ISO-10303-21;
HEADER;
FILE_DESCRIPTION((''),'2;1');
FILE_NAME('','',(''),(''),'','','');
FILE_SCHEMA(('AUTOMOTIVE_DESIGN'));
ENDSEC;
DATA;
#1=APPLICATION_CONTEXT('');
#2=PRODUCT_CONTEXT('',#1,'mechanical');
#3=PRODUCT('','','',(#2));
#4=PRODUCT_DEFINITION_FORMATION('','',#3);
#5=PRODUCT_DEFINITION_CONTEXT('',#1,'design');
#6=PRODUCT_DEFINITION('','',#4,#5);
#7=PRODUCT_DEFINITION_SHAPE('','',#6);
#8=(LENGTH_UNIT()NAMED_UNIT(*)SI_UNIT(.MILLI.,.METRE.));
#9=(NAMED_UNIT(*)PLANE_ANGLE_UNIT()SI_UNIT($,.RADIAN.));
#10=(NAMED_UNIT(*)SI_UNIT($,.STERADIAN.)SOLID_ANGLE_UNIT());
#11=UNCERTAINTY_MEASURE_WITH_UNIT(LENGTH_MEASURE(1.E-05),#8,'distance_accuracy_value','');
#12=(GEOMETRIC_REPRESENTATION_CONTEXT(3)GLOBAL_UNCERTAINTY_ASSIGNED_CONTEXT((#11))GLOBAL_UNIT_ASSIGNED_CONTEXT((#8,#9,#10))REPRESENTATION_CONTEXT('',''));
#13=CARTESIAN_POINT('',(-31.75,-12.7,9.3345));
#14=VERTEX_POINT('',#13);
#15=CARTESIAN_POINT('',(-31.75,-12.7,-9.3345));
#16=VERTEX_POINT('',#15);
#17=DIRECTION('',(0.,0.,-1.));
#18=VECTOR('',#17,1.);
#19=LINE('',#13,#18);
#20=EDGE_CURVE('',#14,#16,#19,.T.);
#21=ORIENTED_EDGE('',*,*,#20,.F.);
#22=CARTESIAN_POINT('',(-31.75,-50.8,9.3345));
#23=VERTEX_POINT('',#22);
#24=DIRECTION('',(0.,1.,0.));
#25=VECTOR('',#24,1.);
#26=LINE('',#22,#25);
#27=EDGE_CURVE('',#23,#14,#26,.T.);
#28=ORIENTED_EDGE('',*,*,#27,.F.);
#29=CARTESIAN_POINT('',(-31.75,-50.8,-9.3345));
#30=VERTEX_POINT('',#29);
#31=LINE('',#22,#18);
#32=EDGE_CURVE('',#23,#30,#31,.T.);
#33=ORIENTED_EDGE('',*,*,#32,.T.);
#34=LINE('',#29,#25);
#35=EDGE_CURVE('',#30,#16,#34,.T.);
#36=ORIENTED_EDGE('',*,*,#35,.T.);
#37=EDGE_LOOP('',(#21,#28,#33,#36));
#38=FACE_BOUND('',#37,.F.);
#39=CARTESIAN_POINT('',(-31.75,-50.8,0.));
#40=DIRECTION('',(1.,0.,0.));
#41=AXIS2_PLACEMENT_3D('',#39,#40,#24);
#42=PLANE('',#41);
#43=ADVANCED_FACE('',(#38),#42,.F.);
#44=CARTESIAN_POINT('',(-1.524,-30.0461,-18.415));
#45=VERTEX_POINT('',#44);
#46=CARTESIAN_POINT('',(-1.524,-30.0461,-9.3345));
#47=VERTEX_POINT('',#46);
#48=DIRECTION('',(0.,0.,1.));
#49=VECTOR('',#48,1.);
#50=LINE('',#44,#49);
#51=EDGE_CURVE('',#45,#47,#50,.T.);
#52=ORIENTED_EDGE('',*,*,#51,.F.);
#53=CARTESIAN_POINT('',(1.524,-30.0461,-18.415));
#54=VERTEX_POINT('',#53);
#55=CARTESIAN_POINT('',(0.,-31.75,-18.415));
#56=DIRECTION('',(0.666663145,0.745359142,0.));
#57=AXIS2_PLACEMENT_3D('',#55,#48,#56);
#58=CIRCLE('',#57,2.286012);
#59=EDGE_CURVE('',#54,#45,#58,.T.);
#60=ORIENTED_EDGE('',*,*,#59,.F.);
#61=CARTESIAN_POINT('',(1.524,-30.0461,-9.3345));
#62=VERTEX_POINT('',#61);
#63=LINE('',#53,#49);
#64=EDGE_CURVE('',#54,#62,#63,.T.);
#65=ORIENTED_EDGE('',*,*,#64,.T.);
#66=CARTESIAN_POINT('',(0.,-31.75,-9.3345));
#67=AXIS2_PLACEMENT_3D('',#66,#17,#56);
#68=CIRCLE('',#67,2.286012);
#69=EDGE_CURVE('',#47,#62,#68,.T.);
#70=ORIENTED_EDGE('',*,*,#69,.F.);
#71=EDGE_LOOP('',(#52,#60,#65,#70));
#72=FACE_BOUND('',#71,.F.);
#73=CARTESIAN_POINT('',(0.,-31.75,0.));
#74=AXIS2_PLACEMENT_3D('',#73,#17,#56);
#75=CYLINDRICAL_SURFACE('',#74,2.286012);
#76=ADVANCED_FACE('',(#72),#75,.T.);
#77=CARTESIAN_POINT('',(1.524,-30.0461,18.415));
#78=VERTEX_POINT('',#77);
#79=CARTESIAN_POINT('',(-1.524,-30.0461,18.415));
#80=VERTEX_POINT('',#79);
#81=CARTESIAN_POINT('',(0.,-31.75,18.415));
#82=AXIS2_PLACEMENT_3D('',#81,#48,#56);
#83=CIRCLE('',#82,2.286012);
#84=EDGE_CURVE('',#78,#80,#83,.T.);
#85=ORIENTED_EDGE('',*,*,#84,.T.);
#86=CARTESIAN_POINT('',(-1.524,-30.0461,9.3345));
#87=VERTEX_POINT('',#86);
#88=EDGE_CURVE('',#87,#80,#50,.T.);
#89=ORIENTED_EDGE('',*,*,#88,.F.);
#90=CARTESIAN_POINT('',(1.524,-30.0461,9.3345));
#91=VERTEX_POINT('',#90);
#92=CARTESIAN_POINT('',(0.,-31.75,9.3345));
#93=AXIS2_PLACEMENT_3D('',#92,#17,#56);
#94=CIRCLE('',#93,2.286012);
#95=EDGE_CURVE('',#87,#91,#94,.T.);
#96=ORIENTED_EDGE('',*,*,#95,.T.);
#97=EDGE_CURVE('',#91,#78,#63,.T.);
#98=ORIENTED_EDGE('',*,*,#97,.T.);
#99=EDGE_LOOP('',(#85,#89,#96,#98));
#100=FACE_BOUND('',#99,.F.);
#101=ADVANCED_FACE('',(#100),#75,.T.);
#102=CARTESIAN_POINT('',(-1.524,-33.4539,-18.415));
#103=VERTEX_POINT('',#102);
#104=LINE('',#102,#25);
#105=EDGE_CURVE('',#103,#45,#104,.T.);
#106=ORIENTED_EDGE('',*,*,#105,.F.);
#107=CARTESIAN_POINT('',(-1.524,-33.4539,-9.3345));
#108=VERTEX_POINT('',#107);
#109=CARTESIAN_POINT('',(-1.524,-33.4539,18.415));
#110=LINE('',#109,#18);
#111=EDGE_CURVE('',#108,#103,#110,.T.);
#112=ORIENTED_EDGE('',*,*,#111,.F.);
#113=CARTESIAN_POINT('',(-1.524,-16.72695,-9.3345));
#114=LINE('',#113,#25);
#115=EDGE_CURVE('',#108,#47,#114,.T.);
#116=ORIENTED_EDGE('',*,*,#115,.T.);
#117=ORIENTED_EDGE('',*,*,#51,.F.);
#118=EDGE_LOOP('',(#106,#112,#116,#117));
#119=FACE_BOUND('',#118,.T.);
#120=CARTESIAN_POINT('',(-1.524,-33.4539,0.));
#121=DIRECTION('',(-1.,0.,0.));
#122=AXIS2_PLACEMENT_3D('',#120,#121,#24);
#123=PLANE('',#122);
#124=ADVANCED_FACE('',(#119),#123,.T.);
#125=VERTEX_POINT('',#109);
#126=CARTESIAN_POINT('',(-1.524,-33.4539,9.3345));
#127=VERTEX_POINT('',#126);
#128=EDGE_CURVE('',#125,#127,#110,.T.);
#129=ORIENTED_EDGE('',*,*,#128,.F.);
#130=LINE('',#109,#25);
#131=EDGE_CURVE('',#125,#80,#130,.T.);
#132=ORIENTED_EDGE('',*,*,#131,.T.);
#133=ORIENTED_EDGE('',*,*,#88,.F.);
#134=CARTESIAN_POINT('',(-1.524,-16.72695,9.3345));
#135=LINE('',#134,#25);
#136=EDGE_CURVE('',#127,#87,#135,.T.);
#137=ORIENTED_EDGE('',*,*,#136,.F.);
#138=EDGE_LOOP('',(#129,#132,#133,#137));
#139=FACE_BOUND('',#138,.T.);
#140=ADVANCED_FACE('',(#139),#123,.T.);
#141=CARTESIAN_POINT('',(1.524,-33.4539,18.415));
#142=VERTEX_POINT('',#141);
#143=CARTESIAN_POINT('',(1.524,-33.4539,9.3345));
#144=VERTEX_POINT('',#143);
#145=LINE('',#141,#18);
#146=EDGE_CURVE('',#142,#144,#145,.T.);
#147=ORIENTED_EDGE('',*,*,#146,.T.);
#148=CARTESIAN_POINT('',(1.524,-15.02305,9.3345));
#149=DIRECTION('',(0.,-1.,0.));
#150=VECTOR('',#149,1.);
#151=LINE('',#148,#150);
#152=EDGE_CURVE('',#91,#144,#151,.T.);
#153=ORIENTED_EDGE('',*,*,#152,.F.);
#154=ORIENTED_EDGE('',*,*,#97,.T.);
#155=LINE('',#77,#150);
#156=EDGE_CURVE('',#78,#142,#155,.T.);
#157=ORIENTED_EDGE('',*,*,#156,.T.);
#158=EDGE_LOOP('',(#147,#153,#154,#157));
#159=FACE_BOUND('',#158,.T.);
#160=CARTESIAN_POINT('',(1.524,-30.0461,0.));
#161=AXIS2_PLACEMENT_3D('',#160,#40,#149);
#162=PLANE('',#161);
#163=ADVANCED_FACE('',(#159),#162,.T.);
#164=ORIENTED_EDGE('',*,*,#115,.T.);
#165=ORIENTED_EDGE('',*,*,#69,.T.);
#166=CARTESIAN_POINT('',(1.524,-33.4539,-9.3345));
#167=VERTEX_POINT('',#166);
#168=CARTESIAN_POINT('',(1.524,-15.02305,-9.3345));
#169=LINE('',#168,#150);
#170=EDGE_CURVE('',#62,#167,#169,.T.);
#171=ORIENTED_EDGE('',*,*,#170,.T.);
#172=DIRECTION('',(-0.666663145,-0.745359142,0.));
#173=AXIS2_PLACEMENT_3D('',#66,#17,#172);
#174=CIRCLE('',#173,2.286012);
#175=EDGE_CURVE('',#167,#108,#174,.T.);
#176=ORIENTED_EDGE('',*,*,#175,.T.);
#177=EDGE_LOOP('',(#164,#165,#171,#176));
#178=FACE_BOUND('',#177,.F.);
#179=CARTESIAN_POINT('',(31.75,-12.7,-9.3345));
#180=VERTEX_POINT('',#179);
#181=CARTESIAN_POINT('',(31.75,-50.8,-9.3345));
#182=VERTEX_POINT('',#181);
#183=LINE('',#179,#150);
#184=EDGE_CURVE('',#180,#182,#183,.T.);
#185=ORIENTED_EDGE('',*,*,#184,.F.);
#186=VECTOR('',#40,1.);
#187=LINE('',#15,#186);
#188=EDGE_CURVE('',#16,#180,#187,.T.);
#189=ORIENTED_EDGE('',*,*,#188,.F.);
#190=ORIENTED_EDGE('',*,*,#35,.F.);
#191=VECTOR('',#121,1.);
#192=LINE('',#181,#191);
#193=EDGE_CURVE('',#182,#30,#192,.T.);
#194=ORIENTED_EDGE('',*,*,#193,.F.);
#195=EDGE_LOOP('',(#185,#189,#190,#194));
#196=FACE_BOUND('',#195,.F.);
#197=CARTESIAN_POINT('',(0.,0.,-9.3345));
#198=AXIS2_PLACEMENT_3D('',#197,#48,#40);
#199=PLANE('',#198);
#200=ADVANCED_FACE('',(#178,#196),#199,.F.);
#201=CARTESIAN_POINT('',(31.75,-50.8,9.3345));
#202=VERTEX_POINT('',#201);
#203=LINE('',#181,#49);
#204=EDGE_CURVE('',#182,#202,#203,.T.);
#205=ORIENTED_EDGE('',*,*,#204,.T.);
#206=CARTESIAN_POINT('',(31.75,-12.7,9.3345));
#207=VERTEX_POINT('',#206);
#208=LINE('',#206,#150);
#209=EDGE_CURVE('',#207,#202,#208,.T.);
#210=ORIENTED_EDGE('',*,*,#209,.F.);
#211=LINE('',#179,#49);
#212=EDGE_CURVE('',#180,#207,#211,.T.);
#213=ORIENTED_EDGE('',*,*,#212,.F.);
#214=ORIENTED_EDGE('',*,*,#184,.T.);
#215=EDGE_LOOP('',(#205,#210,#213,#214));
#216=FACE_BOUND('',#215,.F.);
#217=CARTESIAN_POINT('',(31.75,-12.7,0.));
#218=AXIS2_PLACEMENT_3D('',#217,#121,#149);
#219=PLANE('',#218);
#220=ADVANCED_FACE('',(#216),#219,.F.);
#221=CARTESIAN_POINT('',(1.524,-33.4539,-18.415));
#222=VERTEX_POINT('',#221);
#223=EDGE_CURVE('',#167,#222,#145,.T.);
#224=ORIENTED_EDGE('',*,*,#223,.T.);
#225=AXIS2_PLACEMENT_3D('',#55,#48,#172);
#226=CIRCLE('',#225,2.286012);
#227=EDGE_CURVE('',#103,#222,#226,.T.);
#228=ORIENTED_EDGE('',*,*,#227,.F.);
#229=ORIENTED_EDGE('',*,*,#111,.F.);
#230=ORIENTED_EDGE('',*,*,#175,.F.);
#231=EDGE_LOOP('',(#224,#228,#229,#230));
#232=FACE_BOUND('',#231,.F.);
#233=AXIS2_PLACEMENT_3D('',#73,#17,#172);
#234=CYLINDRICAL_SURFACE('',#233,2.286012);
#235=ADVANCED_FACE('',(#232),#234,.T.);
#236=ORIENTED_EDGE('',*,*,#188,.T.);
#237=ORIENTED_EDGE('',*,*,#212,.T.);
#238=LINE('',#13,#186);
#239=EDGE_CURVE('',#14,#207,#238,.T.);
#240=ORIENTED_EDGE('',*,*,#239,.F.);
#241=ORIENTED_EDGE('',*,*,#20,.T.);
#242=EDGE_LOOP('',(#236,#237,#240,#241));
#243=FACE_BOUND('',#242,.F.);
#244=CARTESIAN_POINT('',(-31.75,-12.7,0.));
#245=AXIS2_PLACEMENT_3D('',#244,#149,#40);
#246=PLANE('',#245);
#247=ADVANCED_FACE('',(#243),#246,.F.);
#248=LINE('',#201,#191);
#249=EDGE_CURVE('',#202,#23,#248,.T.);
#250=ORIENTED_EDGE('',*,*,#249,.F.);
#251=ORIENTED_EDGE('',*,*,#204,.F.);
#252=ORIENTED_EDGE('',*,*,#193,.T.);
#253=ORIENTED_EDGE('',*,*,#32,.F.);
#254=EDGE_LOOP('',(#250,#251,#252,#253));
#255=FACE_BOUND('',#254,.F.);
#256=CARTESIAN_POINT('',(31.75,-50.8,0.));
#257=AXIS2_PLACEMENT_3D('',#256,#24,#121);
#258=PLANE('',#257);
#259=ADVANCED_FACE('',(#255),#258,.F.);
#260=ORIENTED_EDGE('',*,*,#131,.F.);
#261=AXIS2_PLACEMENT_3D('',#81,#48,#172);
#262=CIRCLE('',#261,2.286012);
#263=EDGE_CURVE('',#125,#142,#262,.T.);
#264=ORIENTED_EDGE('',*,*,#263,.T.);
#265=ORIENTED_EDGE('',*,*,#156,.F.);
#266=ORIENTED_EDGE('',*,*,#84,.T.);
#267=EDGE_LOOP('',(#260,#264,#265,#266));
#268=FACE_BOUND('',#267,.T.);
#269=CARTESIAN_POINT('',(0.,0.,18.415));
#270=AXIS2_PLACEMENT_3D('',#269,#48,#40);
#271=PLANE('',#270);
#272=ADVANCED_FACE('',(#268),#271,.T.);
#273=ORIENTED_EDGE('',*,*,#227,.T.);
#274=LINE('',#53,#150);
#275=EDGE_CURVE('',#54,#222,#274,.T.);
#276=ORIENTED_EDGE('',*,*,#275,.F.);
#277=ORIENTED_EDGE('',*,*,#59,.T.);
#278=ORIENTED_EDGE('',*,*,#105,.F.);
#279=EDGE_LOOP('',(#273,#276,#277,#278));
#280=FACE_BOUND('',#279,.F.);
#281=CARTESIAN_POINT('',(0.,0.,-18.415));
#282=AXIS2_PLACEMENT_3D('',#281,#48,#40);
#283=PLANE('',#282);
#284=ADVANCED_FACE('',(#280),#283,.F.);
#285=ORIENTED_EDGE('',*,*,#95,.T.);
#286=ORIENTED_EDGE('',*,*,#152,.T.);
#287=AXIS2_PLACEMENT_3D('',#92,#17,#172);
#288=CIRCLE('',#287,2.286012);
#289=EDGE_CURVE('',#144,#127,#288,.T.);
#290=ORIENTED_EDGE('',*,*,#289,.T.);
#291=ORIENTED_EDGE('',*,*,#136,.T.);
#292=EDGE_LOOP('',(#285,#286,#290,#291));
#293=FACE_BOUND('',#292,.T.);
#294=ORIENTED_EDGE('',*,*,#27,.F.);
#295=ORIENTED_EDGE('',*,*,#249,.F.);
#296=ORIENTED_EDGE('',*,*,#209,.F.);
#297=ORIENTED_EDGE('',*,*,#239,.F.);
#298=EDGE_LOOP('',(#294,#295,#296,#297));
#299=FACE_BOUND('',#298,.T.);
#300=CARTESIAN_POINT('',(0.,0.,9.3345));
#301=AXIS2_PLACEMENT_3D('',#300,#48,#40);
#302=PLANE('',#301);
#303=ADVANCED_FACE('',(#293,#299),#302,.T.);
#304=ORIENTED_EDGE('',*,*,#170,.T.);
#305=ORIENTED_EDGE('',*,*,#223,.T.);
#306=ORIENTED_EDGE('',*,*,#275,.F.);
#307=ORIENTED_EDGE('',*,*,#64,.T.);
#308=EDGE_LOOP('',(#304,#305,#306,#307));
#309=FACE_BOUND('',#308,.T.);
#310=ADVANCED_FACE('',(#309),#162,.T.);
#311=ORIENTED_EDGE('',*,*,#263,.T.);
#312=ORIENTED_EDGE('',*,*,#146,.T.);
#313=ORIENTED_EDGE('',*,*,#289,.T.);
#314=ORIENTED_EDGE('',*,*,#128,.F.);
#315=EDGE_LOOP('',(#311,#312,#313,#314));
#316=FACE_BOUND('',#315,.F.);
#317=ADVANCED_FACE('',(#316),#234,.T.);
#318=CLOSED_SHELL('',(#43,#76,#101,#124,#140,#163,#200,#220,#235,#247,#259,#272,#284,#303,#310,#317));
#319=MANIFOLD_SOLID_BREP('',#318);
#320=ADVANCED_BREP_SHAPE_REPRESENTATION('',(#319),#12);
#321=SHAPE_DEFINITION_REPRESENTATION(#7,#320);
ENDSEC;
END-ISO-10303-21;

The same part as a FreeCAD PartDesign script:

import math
import FreeCAD as App
import Part
import Sketcher
Q = App.Units.Quantity

doc = App.newDocument("Part")
body = doc.addObject("PartDesign::Body", "Body")

# Sketch on XY plane
sketch1 = body.newObject("Sketcher::SketchObject", "Sketch")
sketch1.AttachmentSupport = (doc.getObject("XY_Plane"), [""])
sketch1.MapMode = "FlatFace"
sketch1.addGeometry([
    Part.LineSegment(App.Vector(1.5, -33.5, 0), App.Vector(1.5, -30, 0)),
    Part.ArcOfCircle(Part.Circle(App.Vector(0, -31.8, 0), App.Vector(0, 0, 1), 2.3), math.radians(48), math.radians(132)),
    Part.LineSegment(App.Vector(-1.5, -30, 0), App.Vector(-1.5, -33.5, 0)),
    Part.ArcOfCircle(Part.Circle(App.Vector(0, -31.8, 0), App.Vector(0, 0, 1), 2.3), math.radians(-132), math.radians(-48)),
], False)
sketch1.addConstraint([
    Sketcher.Constraint("Coincident", 0, 2, 1, 1),
    Sketcher.Constraint("Coincident", 1, 2, 2, 1),
    Sketcher.Constraint("Coincident", 2, 2, 3, 1),
    Sketcher.Constraint("Coincident", 3, 2, 0, 1),
    Sketcher.Constraint("Vertical", 0),
    Sketcher.Constraint("Vertical", 2),
    Sketcher.Constraint("Coincident", 3, 3, 1, 3),
    Sketcher.Constraint("Equal", 1, 3),
    Sketcher.Constraint("Symmetric", 0, 2, 1, 2, -2),
    Sketcher.Constraint("Radius", 1, Q("0.09 in")),
    Sketcher.Constraint("DistanceY", 1, 3, -1, 1, Q("1.25 in")),
    Sketcher.Constraint("DistanceX", -1, 1, 0, 2, Q("0.06 in")),
])
pad1 = body.newObject("PartDesign::Pad", "Pad")
pad1.Profile = sketch1
pad1.Length = Q("1.45 in")
pad1.Midplane = True

# Sketch on XY plane
sketch2 = body.newObject("Sketcher::SketchObject", "Sketch001")
sketch2.AttachmentSupport = (doc.getObject("XY_Plane"), [""])
sketch2.MapMode = "FlatFace"
sketch2.addGeometry([
    Part.LineSegment(App.Vector(-32, -51, 0), App.Vector(32, -51, 0)),
    Part.LineSegment(App.Vector(32, -51, 0), App.Vector(32, -13, 0)),
    Part.LineSegment(App.Vector(32, -13, 0), App.Vector(-32, -13, 0)),
    Part.LineSegment(App.Vector(-32, -13, 0), App.Vector(-32, -51, 0)),
], False)
sketch2.addConstraint([
    Sketcher.Constraint("Coincident", 0, 2, 1, 1),
    Sketcher.Constraint("Coincident", 1, 2, 2, 1),
    Sketcher.Constraint("Coincident", 2, 2, 3, 1),
    Sketcher.Constraint("Coincident", 3, 2, 0, 1),
    Sketcher.Constraint("Horizontal", 0),
    Sketcher.Constraint("Vertical", 1),
    Sketcher.Constraint("Horizontal", 2),
    Sketcher.Constraint("Vertical", 3),
    Sketcher.Constraint("DistanceX", 0, 1, 0, 2, Q("2.5 in")),
    Sketcher.Constraint("DistanceY", 1, 1, 1, 2, Q("1.5 in")),
    Sketcher.Constraint("DistanceY", 0, 2, -1, 1, Q("2 in")),
    Sketcher.Constraint("DistanceX", -1, 1, 0, 2, Q("1.25 in")),
])
pad2 = body.newObject("PartDesign::Pad", "Pad001")
pad2.Profile = sketch2
pad2.Length = Q("0.735 in")
pad2.Midplane = True

doc.recompute()
